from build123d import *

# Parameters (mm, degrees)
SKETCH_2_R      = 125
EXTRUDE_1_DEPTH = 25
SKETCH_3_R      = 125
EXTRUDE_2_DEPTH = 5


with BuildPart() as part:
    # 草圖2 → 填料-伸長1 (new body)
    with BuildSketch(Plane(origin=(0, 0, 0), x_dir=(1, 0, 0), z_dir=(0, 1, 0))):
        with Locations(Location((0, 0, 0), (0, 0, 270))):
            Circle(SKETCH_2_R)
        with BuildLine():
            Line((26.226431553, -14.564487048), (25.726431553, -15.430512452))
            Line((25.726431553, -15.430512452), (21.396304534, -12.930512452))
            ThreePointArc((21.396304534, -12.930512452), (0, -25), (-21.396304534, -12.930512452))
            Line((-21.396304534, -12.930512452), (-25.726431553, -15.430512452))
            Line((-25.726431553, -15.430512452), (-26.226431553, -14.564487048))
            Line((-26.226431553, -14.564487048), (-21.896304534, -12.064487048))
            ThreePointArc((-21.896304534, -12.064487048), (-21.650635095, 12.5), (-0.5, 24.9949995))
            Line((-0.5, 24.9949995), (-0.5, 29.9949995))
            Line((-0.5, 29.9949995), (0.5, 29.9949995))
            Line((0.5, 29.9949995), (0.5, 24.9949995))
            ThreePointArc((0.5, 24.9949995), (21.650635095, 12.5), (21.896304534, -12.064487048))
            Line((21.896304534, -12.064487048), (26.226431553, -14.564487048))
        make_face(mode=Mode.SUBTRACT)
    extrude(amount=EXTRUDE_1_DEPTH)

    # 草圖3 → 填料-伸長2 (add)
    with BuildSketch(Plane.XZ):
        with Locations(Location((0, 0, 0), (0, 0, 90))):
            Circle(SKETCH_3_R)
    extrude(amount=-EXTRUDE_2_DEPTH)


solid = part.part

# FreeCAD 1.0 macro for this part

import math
import FreeCAD as App
import Part
import Sketcher
from FreeCAD import Vector
Q = App.Units.Quantity

doc = App.newDocument("Part")
body = doc.addObject("PartDesign::Body", "Body")

# Sketch on XZ plane
sketch1 = doc.addObject("Sketcher::SketchObject", "Sketch")
body.addObject(sketch1)
sketch1.AttachmentSupport = (doc.XZ_Plane, [""])
sketch1.MapMode = "FlatFace"
sketch1.addGeometry(Part.Circle(Vector(0, 0, 0), Vector(0, 0, 1), 125), False)
sketch1.addGeometry(Part.LineSegment(Vector(21.9, 12.1, 0), Vector(26.2, 14.6, 0)), False)
sketch1.addGeometry(Part.LineSegment(Vector(26.2, 14.6, 0), Vector(25.7, 15.4, 0)), False)
sketch1.addGeometry(Part.LineSegment(Vector(25.7, 15.4, 0), Vector(21.4, 12.9, 0)), False)
sketch1.addGeometry(Part.ArcOfCircle(Part.Circle(Vector(0, 0, 0), Vector(0, 0, 1), 25), math.radians(31), math.radians(149)), False)
sketch1.addGeometry(Part.LineSegment(Vector(-21.4, 12.9, 0), Vector(-25.7, 15.4, 0)), False)
sketch1.addGeometry(Part.LineSegment(Vector(-25.7, 15.4, 0), Vector(-26.2, 14.6, 0)), False)
sketch1.addGeometry(Part.LineSegment(Vector(-26.2, 14.6, 0), Vector(-21.9, 12.1, 0)), False)
sketch1.addGeometry(Part.ArcOfCircle(Part.Circle(Vector(0, 0, 0), Vector(0, 0, 1), 25), math.radians(151), math.radians(269)), False)
sketch1.addGeometry(Part.LineSegment(Vector(-0.5, -25, 0), Vector(-0.5, -30, 0)), False)
sketch1.addGeometry(Part.LineSegment(Vector(-0.5, -30, 0), Vector(0.5, -30, 0)), False)
sketch1.addGeometry(Part.LineSegment(Vector(0.5, -30, 0), Vector(0.5, -25, 0)), False)
sketch1.addGeometry(Part.ArcOfCircle(Part.Circle(Vector(0, 0, 0), Vector(0, 0, 1), 25), math.radians(-89), math.radians(29)), False)
sketch1.addConstraint(Sketcher.Constraint("Coincident", 1, 2, 2, 1))
sketch1.addConstraint(Sketcher.Constraint("Coincident", 2, 2, 3, 1))
sketch1.addConstraint(Sketcher.Constraint("Coincident", 3, 2, 4, 1))
sketch1.addConstraint(Sketcher.Constraint("Coincident", 4, 2, 5, 1))
sketch1.addConstraint(Sketcher.Constraint("Coincident", 5, 2, 6, 1))
sketch1.addConstraint(Sketcher.Constraint("Coincident", 6, 2, 7, 1))
sketch1.addConstraint(Sketcher.Constraint("Coincident", 7, 2, 8, 1))
sketch1.addConstraint(Sketcher.Constraint("Coincident", 8, 2, 9, 1))
sketch1.addConstraint(Sketcher.Constraint("Coincident", 9, 2, 10, 1))
sketch1.addConstraint(Sketcher.Constraint("Coincident", 10, 2, 11, 1))
sketch1.addConstraint(Sketcher.Constraint("Coincident", 11, 2, 12, 1))
sketch1.addConstraint(Sketcher.Constraint("Coincident", 12, 2, 1, 1))
sketch1.addConstraint(Sketcher.Constraint("Vertical", 9))
sketch1.addConstraint(Sketcher.Constraint("Horizontal", 10))
sketch1.addConstraint(Sketcher.Constraint("Vertical", 11))
sketch1.addConstraint(Sketcher.Constraint("Coincident", 0, 3, -1, 1))
sketch1.addConstraint(Sketcher.Constraint("Coincident", 4, 3, -1, 1))
sketch1.addConstraint(Sketcher.Constraint("Coincident", 8, 3, -1, 1))
sketch1.addConstraint(Sketcher.Constraint("Coincident", 12, 3, -1, 1))
sketch1.addConstraint(Sketcher.Constraint("Equal", 4, 8))
sketch1.addConstraint(Sketcher.Constraint("Equal", 8, 12))
sketch1.addConstraint(Sketcher.Constraint("Symmetric", 2, 2, 5, 2, -2))
sketch1.addConstraint(Sketcher.Constraint("Symmetric", 1, 2, 6, 2, -2))
sketch1.addConstraint(Sketcher.Constraint("Perpendicular", 1, 2))
sketch1.addConstraint(Sketcher.Constraint("Perpendicular", 2, 3))
sketch1.addConstraint(Sketcher.Constraint("Perpendicular", 5, 6))
sketch1.addConstraint(Sketcher.Constraint("Perpendicular", 6, 7))
sketch1.addConstraint(Sketcher.Constraint("Horizontal", 8, 2, 11, 2))
sketch1.addConstraint(Sketcher.Constraint("Equal", 1, 3))
sketch1.addConstraint(Sketcher.Constraint("Diameter", 0, Q("250 mm")))
sketch1.addConstraint(Sketcher.Constraint("Radius", 4, Q("25 mm")))
sketch1.addConstraint(Sketcher.Constraint("DistanceX", 10, 1, 10, 2, Q("1 mm")))
sketch1.addConstraint(Sketcher.Constraint("DistanceY", 9, 2, 9, 1, Q("5 mm")))
sketch1.addConstraint(Sketcher.Constraint("Angle", 1, Q("30 deg")))
sketch1.addConstraint(Sketcher.Constraint("Distance", 1, Q("5 mm")))
sketch1.addConstraint(Sketcher.Constraint("Distance", 2, Q("1 mm")))
pad1 = doc.addObject("PartDesign::Pad", "Pad")
body.addObject(pad1)
pad1.Profile = sketch1
pad1.Length = 25
pad1.Reversed = True

# Sketch on XZ plane
sketch2 = doc.addObject("Sketcher::SketchObject", "Sketch001")
body.addObject(sketch2)
sketch2.AttachmentSupport = (doc.XZ_Plane, [""])
sketch2.MapMode = "FlatFace"
sketch2.addGeometry(Part.Circle(Vector(0, 0, 0), Vector(0, 0, 1), 125), False)
sketch2.addConstraint(Sketcher.Constraint("Coincident", 0, 3, -1, 1))
sketch2.addConstraint(Sketcher.Constraint("Diameter", 0, Q("250 mm")))
pad2 = doc.addObject("PartDesign::Pad", "Pad001")
body.addObject(pad2)
pad2.Profile = sketch2
pad2.Length = 5
pad2.Reversed = True

doc.recompute()
